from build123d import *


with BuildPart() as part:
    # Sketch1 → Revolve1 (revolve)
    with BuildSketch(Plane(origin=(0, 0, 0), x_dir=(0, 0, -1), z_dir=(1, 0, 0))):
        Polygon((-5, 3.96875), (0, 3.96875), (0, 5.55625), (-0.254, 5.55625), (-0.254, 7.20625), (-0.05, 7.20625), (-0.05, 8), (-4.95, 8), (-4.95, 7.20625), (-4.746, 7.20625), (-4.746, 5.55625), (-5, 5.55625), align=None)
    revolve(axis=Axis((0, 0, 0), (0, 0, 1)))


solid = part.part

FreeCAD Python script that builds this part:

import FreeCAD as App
import Part
import Sketcher

V = App.Vector
Q = App.Units.Quantity


def add_polygon(sketch, points):
    """Adds a closed chain of lines whose ends are joined by coincident constraints."""
    first, n = sketch.GeometryCount, len(points)
    for a, b in zip(points, points[1:] + points[:1]):
        sketch.addGeometry(Part.LineSegment(App.Vector(*a, 0), App.Vector(*b, 0)), False)
    for i in range(n):
        sketch.addConstraint(Sketcher.Constraint("Coincident", first + i, 2, first + (i + 1) % n, 1))

doc = App.newDocument("Part")
params = doc.addObject("Spreadsheet::Sheet", "Params")
for row, (alias, value) in enumerate([
    ("sketch1_height", "0.01 in"),
    ("sketch1_width", "0.0625 in"),
    ("sketch1_width2", "0.03125 in"),
    ("revolution_angle", "360 deg"),
], start=1):
    params.set(f"A{row}", alias)
    params.set(f"B{row}", "=" + value)
    params.setAlias(f"B{row}", alias)

body = doc.addObject("PartDesign::Body", "Body")

sketch1 = doc.addObject("Sketcher::SketchObject", "Sketch")
body.addObject(sketch1)
sketch1.AttachmentSupport = (doc.YZ_Plane, [""])
sketch1.MapMode = "FlatFace"
add_polygon(sketch1, [(3.97, 5), (3.97, 0), (5.56, 0), (5.56, 0.25), (7.21, 0.25), (7.21, 0.05), (8, 0.05), (8, 4.95), (7.21, 4.95), (7.21, 4.75), (5.56, 4.75), (5.56, 5)])
sketch1.addConstraint([
    Sketcher.Constraint("Vertical", 0),
    Sketcher.Constraint("Horizontal", 1),
    Sketcher.Constraint("Vertical", 2),
    Sketcher.Constraint("Horizontal", 3),
    Sketcher.Constraint("Vertical", 4),
    Sketcher.Constraint("Horizontal", 5),
    Sketcher.Constraint("Vertical", 6),
    Sketcher.Constraint("Horizontal", 7),
    Sketcher.Constraint("Vertical", 8),
    Sketcher.Constraint("Horizontal", 9),
    Sketcher.Constraint("Vertical", 10),
    Sketcher.Constraint("Horizontal", 11),
    Sketcher.Constraint("PointOnObject", 0, 2, -1),
    Sketcher.Constraint("Vertical", 4, 2, 7, 2),
    Sketcher.Constraint("Vertical", 2, 2, 9, 2),
    Sketcher.Constraint("Equal", 4, 8),
    Sketcher.Constraint("Equal", 2, 10),
    Sketcher.Constraint("DistanceY", 2, 1, 2, 2, Q("0.01 in")),
    Sketcher.Constraint("DistanceX", 1, 1, 1, 2, Q("0.0625 in")),
    Sketcher.Constraint("DistanceX", 5, 1, 5, 2, Q("0.03125 in")),
    Sketcher.Constraint("DistanceX", -1, 1, 0, 2, Q("0.15625 in")),
    Sketcher.Constraint("DistanceX", 3, 1, 3, 2, Q("1.65 mm")),
    Sketcher.Constraint("DistanceY", 0, 2, 0, 1, Q("5 mm")),
    Sketcher.Constraint("DistanceY", 4, 2, 4, 1, Q("0.204 mm")),
])
sketch1.setExpression("Constraints[29]", "Params.sketch1_height")
sketch1.setExpression("Constraints[30]", "Params.sketch1_width")
sketch1.setExpression("Constraints[31]", "Params.sketch1_width2")
revolution = doc.addObject("PartDesign::Revolution", "Revolution")
body.addObject(revolution)
revolution.Profile = sketch1
revolution.ReferenceAxis = (sketch1, ["V_Axis"])
revolution.setExpression("Angle", "Params.revolution_angle")

doc.recompute()
